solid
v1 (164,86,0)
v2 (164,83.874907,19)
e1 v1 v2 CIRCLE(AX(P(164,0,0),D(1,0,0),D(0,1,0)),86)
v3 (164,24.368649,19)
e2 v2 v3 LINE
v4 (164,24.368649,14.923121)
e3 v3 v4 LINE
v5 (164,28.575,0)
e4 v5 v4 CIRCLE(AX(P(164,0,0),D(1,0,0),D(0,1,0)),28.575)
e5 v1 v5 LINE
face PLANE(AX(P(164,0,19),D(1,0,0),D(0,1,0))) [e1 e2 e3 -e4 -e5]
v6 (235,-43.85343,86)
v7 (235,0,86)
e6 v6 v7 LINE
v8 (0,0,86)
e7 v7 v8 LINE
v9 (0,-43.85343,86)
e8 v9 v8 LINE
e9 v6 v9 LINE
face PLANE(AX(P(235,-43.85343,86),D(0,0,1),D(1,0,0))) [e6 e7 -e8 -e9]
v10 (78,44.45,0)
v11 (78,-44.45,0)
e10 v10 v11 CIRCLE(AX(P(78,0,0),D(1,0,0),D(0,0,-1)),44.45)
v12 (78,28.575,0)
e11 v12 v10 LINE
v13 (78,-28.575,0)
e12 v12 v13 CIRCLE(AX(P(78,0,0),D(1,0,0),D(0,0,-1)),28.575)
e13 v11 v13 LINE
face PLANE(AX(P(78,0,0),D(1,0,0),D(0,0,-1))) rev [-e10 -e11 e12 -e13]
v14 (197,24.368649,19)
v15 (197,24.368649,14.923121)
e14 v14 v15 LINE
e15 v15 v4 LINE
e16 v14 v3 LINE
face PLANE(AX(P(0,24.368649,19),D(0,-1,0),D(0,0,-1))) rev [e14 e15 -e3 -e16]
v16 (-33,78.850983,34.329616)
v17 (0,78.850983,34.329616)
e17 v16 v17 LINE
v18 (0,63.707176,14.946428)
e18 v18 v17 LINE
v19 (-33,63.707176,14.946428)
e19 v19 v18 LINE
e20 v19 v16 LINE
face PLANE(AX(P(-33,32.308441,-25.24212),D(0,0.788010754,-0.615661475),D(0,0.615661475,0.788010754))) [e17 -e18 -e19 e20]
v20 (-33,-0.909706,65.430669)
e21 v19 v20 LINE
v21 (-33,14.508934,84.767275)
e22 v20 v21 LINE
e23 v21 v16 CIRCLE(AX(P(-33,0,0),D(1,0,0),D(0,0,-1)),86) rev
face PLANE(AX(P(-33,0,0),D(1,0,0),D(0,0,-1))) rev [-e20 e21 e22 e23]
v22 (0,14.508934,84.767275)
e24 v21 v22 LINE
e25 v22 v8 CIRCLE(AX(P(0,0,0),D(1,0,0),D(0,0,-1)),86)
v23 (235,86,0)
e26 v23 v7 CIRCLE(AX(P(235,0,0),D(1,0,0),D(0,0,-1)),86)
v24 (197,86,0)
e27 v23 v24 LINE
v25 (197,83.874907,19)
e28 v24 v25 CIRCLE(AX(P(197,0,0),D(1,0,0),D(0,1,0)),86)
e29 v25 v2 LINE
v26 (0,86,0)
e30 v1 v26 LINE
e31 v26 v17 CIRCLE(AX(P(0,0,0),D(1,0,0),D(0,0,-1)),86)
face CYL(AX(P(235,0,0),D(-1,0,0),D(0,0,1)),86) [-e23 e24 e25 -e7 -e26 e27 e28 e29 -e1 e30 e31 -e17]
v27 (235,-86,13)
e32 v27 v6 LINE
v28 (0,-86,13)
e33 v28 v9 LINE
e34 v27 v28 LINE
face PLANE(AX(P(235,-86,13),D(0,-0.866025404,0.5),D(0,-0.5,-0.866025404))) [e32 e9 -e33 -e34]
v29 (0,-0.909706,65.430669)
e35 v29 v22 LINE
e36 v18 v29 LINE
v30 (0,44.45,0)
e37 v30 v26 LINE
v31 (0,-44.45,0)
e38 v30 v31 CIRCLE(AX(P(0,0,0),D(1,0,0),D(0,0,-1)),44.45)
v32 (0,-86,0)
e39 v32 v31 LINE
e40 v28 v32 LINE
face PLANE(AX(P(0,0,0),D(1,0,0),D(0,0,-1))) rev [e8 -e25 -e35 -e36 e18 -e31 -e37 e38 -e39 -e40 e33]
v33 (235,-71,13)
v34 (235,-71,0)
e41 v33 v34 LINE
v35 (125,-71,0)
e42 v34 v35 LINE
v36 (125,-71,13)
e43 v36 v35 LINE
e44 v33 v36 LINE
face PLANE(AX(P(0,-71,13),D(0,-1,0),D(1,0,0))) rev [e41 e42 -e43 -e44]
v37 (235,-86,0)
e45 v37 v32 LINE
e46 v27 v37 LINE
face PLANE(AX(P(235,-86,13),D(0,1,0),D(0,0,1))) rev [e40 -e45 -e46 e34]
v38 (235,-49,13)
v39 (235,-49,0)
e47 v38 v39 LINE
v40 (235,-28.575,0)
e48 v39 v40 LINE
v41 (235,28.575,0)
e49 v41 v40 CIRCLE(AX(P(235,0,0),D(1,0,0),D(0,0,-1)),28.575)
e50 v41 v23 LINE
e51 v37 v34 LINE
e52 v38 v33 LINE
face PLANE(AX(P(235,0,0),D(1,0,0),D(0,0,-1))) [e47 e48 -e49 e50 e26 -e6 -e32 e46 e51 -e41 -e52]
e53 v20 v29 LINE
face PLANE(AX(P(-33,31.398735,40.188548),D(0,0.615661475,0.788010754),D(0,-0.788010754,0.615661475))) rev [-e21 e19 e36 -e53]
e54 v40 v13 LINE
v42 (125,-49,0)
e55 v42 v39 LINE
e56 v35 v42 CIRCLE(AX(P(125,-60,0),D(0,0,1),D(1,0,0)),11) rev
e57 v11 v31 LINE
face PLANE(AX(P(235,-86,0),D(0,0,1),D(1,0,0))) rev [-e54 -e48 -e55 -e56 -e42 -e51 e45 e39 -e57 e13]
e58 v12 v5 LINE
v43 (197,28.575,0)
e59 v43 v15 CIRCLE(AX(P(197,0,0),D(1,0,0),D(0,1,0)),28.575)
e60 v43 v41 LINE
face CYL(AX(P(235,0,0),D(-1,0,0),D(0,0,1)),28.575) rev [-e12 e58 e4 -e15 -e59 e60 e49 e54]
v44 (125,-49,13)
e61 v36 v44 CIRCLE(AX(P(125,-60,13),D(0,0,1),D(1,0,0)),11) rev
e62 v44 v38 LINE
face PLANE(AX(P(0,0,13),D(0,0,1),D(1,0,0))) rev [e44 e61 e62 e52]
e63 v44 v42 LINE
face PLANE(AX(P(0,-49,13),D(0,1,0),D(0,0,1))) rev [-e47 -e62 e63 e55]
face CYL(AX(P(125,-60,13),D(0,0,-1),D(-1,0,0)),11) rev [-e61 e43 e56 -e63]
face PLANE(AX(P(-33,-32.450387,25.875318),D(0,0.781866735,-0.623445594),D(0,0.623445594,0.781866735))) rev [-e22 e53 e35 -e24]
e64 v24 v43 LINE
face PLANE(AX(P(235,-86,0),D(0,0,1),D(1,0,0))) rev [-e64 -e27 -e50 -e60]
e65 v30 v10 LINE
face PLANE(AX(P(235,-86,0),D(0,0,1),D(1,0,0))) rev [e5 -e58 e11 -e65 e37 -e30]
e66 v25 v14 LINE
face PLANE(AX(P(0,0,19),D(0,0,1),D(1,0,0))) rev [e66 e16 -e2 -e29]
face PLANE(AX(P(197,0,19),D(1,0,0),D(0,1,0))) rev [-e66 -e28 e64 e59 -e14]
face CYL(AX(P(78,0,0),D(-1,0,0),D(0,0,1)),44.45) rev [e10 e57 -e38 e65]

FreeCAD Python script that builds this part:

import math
import FreeCAD as App
import Part
import Sketcher
Q = App.Units.Quantity


def add_polygon(sketch, points):
    """Adds a closed chain of lines whose ends are joined by coincident constraints."""
    first, n = sketch.GeometryCount, len(points)
    for a, b in zip(points, points[1:] + points[:1]):
        sketch.addGeometry(Part.LineSegment(App.Vector(*a, 0), App.Vector(*b, 0)), False)
    for i in range(n):
        sketch.addConstraint(Sketcher.Constraint("Coincident", first + i, 2, first + (i + 1) % n, 1))

doc = App.newDocument("Part")
body = doc.addObject("PartDesign::Body", "Body")

sketch1 = body.newObject("Sketcher::SketchObject", "Sketch")
sketch1.AttachmentSupport = (doc.getObject("YZ_Plane"), [""])
sketch1.MapMode = "FlatFace"
sketch1.addGeometry([
    Part.ArcOfCircle(Part.Circle(App.Vector(0, 0, 0), App.Vector(0, 0, 1), 86), math.radians(0), math.radians(90)),
    Part.LineSegment(App.Vector(0, 86, 0), App.Vector(-43.85343, 86, 0)),
    Part.LineSegment(App.Vector(-43.85343, 86, 0), App.Vector(-86, 13, 0)),
    Part.LineSegment(App.Vector(-86, 13, 0), App.Vector(-86, 0, 0)),
    Part.LineSegment(App.Vector(-86, 0, 0), App.Vector(86, 0, 0)),
], False)
sketch1.addConstraint([
    Sketcher.Constraint("Tangent", 0, 2, 1, 1),
    Sketcher.Constraint("Coincident", 1, 2, 2, 1),
    Sketcher.Constraint("Coincident", 2, 2, 3, 1),
    Sketcher.Constraint("Coincident", 3, 2, 4, 1),
    Sketcher.Constraint("Coincident", 4, 2, 0, 1),
    Sketcher.Constraint("Horizontal", 1),
    Sketcher.Constraint("Vertical", 3),
    Sketcher.Constraint("Horizontal", 4),
    Sketcher.Constraint("Coincident", 0, 3, -1, 1),
    Sketcher.Constraint("Symmetric", 3, 2, 4, 2, -1, 1),
    Sketcher.Constraint("Radius", 0, Q("86 mm")),
    Sketcher.Constraint("DistanceY", 3, 2, 3, 1, Q("13 mm")),
    Sketcher.Constraint("Angle", 2, Q("-120 deg")),
])
pad1 = body.newObject("PartDesign::Pad", "Pad")
pad1.Profile = sketch1
pad1.Length = 235

sketch2 = body.newObject("Sketcher::SketchObject", "Sketch001")
sketch2.AttachmentSupport = (doc.getObject("YZ_Plane"), [""])
sketch2.MapMode = "FlatFace"
sketch2.addGeometry(Part.Circle(App.Vector(0, 0, 0), App.Vector(0, 0, 1), 28.575), False)
sketch2.addConstraint([
    Sketcher.Constraint("Coincident", 0, 3, -1, 1),
    Sketcher.Constraint("Diameter", 0, Q("57.15 mm")),
])
pocket1 = body.newObject("PartDesign::Pocket", "Pocket")
pocket1.Profile = sketch2
pocket1.Length = 235
pocket1.Reversed = True

sketch3 = body.newObject("Sketcher::SketchObject", "Sketch002")
sketch3.AttachmentSupport = (doc.getObject("YZ_Plane"), [""])
sketch3.MapMode = "FlatFace"
sketch3.addGeometry(Part.Circle(App.Vector(0, 0, 0), App.Vector(0, 0, 1), 44.45), False)
sketch3.addConstraint([
    Sketcher.Constraint("Coincident", 0, 3, -1, 1),
    Sketcher.Constraint("Diameter", 0, Q("88.9 mm")),
])
pocket2 = body.newObject("PartDesign::Pocket", "Pocket001")
pocket2.Profile = sketch3
pocket2.Length = 78
pocket2.Reversed = True

sketch4 = body.newObject("Sketcher::SketchObject", "Sketch003")
sketch4.AttachmentSupport = (doc.getObject("XY_Plane"), [""])
sketch4.MapMode = "FlatFace"
add_polygon(sketch4, [(164, 86), (164, 24.368649), (197, 24.368649), (197, 86)])
sketch4.addConstraint([
    Sketcher.Constraint("Vertical", 0),
    Sketcher.Constraint("Horizontal", 1),
    Sketcher.Constraint("Vertical", 2),
    Sketcher.Constraint("Horizontal", 3),
    Sketcher.Constraint("DistanceX", 1, 1, 1, 2, Q("33 mm")),
    Sketcher.Constraint("DistanceX", -1, 1, 0, 2, Q("164 mm")),
    Sketcher.Constraint("DistanceY", -1, 1, 2, 2, Q("86 mm")),
    Sketcher.Constraint("DistanceY", 0, 2, 0, 1, Q("61.631351 mm")),
])
pocket3 = body.newObject("PartDesign::Pocket", "Pocket002")
pocket3.Profile = sketch4
pocket3.Length = 19
pocket3.Reversed = True

sketch5 = body.newObject("Sketcher::SketchObject", "Sketch004")
sketch5.AttachmentSupport = (doc.getObject("XY_Plane"), [""])
sketch5.MapMode = "FlatFace"
sketch5.addGeometry([
    Part.ArcOfCircle(Part.Circle(App.Vector(125, -60, 0), App.Vector(0, 0, 1), 11), math.radians(90), math.radians(270)),
    Part.LineSegment(App.Vector(125, -71, 0), App.Vector(235, -71, 0)),
    Part.LineSegment(App.Vector(235, -71, 0), App.Vector(235, -49, 0)),
    Part.LineSegment(App.Vector(235, -49, 0), App.Vector(125, -49, 0)),
], False)
sketch5.addConstraint([
    Sketcher.Constraint("Tangent", 0, 2, 1, 1),
    Sketcher.Constraint("Coincident", 1, 2, 2, 1),
    Sketcher.Constraint("Coincident", 2, 2, 3, 1),
    Sketcher.Constraint("Tangent", 3, 2, 0, 1),
    Sketcher.Constraint("Horizontal", 1),
    Sketcher.Constraint("Vertical", 2),
    Sketcher.Constraint("Horizontal", 3),
    Sketcher.Constraint("Radius", 0, Q("11 mm")),
    Sketcher.Constraint("DistanceX", 1, 1, 1, 2, Q("110 mm")),
    Sketcher.Constraint("DistanceX", -1, 1, 0, 3, Q("125 mm")),
    Sketcher.Constraint("DistanceY", 0, 3, -1, 1, Q("60 mm")),
])
pocket4 = body.newObject("PartDesign::Pocket", "Pocket003")
pocket4.Profile = sketch5
pocket4.Length = 13
pocket4.Reversed = True

sketch6 = body.newObject("Sketcher::SketchObject", "Sketch005")
sketch6.AttachmentSupport = (doc.getObject("YZ_Plane"), [""])
sketch6.MapMode = "FlatFace"
sketch6.AttachmentOffset = App.Placement(App.Vector(0, 0, -33), App.Rotation())
sketch6.addGeometry([
    Part.LineSegment(App.Vector(-0.909706, 65.430669, 0), App.Vector(31.398735, 40.188548, 0)),
    Part.LineSegment(App.Vector(31.398735, 40.188548, 0), App.Vector(63.707176, 14.946428, 0)),
    Part.LineSegment(App.Vector(63.707176, 14.946428, 0), App.Vector(78.850983, 34.329616, 0)),
    Part.ArcOfCircle(Part.Circle(App.Vector(0, 0, 0), App.Vector(0, 0, 1), 86), math.radians(23.527025), math.radians(80.287261)),
    Part.LineSegment(App.Vector(14.508934, 84.767275, 0), App.Vector(-0.909706, 65.430669, 0)),
], False)
sketch6.addConstraint([
    Sketcher.Constraint("Coincident", 0, 2, 1, 1),
    Sketcher.Constraint("Coincident", 1, 2, 2, 1),
    Sketcher.Constraint("Coincident", 2, 2, 3, 1),
    Sketcher.Constraint("Coincident", 3, 2, 4, 1),
    Sketcher.Constraint("Coincident", 4, 2, 0, 1),
    Sketcher.Constraint("Coincident", 3, 3, -1, 1),
    Sketcher.Constraint("Parallel", 0, 1),
    Sketcher.Constraint("Perpendicular", 1, 2),
    Sketcher.Constraint("Equal", 0, 1),
    Sketcher.Constraint("Radius", 3, Q("86 mm")),
    Sketcher.Constraint("Angle", 0, Q("-38 deg")),
    Sketcher.Constraint("Distance", 0, Q("41 mm")),
    Sketcher.Constraint("DistanceX", 3, 2, 0, 2, Q("16.889801 mm")),
    Sketcher.Constraint("Distance", 2, Q("24.597619 mm")),
    Sketcher.Constraint("Distance", 4, Q("24.731332 mm")),
])
pad2 = body.newObject("PartDesign::Pad", "Pad001")
pad2.Profile = sketch6
pad2.Length = 33

doc.recompute()
